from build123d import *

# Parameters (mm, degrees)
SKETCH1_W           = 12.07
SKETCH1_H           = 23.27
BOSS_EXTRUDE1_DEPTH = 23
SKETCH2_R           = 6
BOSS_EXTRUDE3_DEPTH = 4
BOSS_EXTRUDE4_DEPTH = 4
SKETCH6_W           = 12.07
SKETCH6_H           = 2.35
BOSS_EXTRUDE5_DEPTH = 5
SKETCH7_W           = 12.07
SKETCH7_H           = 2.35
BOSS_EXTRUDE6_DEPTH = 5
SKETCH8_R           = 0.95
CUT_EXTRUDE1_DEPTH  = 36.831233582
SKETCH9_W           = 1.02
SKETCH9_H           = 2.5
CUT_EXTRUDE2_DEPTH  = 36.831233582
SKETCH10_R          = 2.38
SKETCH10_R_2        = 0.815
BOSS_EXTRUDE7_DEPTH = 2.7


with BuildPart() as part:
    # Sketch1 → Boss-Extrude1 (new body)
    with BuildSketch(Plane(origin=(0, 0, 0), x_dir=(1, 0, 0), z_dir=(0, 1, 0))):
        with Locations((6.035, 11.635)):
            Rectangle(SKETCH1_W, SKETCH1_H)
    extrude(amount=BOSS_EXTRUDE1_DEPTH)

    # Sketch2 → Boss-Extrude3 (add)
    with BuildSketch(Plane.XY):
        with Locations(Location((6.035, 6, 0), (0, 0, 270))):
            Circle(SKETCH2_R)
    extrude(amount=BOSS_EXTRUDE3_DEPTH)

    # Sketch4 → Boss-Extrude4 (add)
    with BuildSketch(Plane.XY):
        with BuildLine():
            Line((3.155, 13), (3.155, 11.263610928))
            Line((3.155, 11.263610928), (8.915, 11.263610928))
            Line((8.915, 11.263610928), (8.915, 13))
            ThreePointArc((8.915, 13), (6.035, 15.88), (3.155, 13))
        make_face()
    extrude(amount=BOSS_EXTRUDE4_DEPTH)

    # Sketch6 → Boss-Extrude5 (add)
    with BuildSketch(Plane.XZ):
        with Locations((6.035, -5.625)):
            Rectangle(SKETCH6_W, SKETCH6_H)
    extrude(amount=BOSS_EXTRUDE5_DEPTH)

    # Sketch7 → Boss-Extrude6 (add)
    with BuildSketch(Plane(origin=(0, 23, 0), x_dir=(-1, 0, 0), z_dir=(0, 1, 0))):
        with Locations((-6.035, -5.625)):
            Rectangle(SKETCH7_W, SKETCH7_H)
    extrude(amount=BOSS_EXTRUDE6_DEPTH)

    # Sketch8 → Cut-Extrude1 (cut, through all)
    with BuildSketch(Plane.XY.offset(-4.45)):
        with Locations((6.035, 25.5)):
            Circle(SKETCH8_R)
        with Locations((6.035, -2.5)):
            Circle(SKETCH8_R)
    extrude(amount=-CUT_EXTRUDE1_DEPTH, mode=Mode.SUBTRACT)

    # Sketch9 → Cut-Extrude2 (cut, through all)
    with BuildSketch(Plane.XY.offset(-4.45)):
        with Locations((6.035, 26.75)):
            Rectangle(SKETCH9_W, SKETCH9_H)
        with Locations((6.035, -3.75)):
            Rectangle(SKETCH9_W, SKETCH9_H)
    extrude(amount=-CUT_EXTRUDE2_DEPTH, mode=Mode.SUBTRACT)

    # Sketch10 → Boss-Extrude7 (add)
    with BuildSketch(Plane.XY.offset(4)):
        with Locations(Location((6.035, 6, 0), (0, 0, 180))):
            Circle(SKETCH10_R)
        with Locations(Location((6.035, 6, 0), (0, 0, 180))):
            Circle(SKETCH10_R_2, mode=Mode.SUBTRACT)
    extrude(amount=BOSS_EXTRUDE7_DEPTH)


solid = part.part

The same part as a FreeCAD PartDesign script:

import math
import FreeCAD as App
import Part
import Sketcher


def add_polygon(sketch, points):
    """Adds a closed chain of lines whose ends are joined by coincident constraints."""
    first, n = sketch.GeometryCount, len(points)
    for a, b in zip(points, points[1:] + points[:1]):
        sketch.addGeometry(Part.LineSegment(App.Vector(*a, 0), App.Vector(*b, 0)), False)
    for i in range(n):
        sketch.addConstraint(Sketcher.Constraint("Coincident", first + i, 2, first + (i + 1) % n, 1))

doc = App.newDocument("Part")
body = doc.addObject("PartDesign::Body", "Body")

# Sketch on XZ plane
sketch1 = doc.addObject("Sketcher::SketchObject", "Sketch")
body.addObject(sketch1)
sketch1.AttachmentSupport = (doc.XZ_Plane, [""])
sketch1.MapMode = "FlatFace"
add_polygon(sketch1, [(0, -23.27), (0, 0), (12.07, 0), (12.07, -23.27)])  # lines 0-3
sketch1.addConstraint([
    Sketcher.Constraint("Vertical", 0),
    Sketcher.Constraint("Horizontal", 1),
    Sketcher.Constraint("Vertical", 2),
    Sketcher.Constraint("Horizontal", 3),
    Sketcher.Constraint("Coincident", 0, 2, -1, 1),
    Sketcher.Constraint("DistanceX", 1, 1, 1, 2, 12.07),
    Sketcher.Constraint("DistanceY", 0, 1, 0, 2, 23.27),
])
pad1 = doc.addObject("PartDesign::Pad", "Pad")
body.addObject(pad1)
pad1.Profile = sketch1
pad1.Length = 23
pad1.Reversed = True

# Sketch on XY plane
sketch2 = doc.addObject("Sketcher::SketchObject", "Sketch001")
body.addObject(sketch2)
sketch2.AttachmentSupport = (doc.XY_Plane, [""])
sketch2.MapMode = "FlatFace"
sketch2.addGeometry(Part.Circle(App.Vector(6.035, 6, 0), App.Vector(0, 0, 1), 6), False)
sketch2.addConstraint([
    Sketcher.Constraint("Diameter", 0, 12.0),
    Sketcher.Constraint("DistanceY", -1, 1, 0, 3, 6.0),
    Sketcher.Constraint("DistanceX", -1, 1, 0, 3, 6.035),
])
pad2 = doc.addObject("PartDesign::Pad", "Pad001")
body.addObject(pad2)
pad2.Profile = sketch2
pad2.Length = 4

# Sketch on XY plane
sketch3 = doc.addObject("Sketcher::SketchObject", "Sketch002")
body.addObject(sketch3)
sketch3.AttachmentSupport = (doc.XY_Plane, [""])
sketch3.MapMode = "FlatFace"
sketch3.addGeometry([
    Part.LineSegment(App.Vector(3.155, 13, 0), App.Vector(3.155, 11.263611, 0)),
    Part.LineSegment(App.Vector(3.155, 11.263611, 0), App.Vector(8.915, 11.263611, 0)),
    Part.LineSegment(App.Vector(8.915, 11.263611, 0), App.Vector(8.915, 13, 0)),
    Part.ArcOfCircle(Part.Circle(App.Vector(6.035, 13, 0), App.Vector(0, 0, 1), 2.88), math.radians(0), math.radians(180)),
], False)
sketch3.addConstraint([
    Sketcher.Constraint("Coincident", 0, 2, 1, 1),
    Sketcher.Constraint("Coincident", 1, 2, 2, 1),
    Sketcher.Constraint("Tangent", 2, 2, 3, 1),
    Sketcher.Constraint("Tangent", 3, 2, 0, 1),
    Sketcher.Constraint("Vertical", 0),
    Sketcher.Constraint("Horizontal", 1),
    Sketcher.Constraint("Vertical", 2),
    Sketcher.Constraint("Radius", 3, 2.88),
    Sketcher.Constraint("DistanceY", -1, 1, 3, 3, 13.0),
    Sketcher.Constraint("DistanceX", -1, 1, 3, 3, 6.035),
    Sketcher.Constraint("DistanceY", 0, 2, 0, 1, 1.736389),
])
pad3 = doc.addObject("PartDesign::Pad", "Pad002")
body.addObject(pad3)
pad3.Profile = sketch3
pad3.Length = 4

# Sketch on XZ plane
sketch4 = doc.addObject("Sketcher::SketchObject", "Sketch003")
body.addObject(sketch4)
sketch4.AttachmentSupport = (doc.XZ_Plane, [""])
sketch4.MapMode = "FlatFace"
add_polygon(sketch4, [(0, -4.45), (0, -6.8), (12.07, -6.8), (12.07, -4.45)])  # lines 0-3
sketch4.addConstraint([
    Sketcher.Constraint("Vertical", 0),
    Sketcher.Constraint("Horizontal", 1),
    Sketcher.Constraint("Vertical", 2),
    Sketcher.Constraint("Horizontal", 3),
    Sketcher.Constraint("PointOnObject", 0, 2, -2),
    Sketcher.Constraint("DistanceX", 1, 1, 1, 2, 12.07),
    Sketcher.Constraint("DistanceY", 0, 2, 0, 1, 2.35),
    Sketcher.Constraint("DistanceY", 0, 2, -1, 1, 6.8),
])
pad4 = doc.addObject("PartDesign::Pad", "Pad003")
body.addObject(pad4)
pad4.Profile = sketch4
pad4.Length = 5

# Sketch on XZ plane
sketch5 = doc.addObject("Sketcher::SketchObject", "Sketch004")
body.addObject(sketch5)
sketch5.AttachmentSupport = (doc.XZ_Plane, [""])
sketch5.MapMode = "FlatFace"
sketch5.AttachmentOffset = App.Placement(App.Vector(0, 0, -23), App.Rotation())
add_polygon(sketch5, [(12.07, -4.45), (12.07, -6.8), (0, -6.8), (0, -4.45)])  # lines 0-3
sketch5.addConstraint([
    Sketcher.Constraint("Vertical", 0),
    Sketcher.Constraint("Horizontal", 1),
    Sketcher.Constraint("Vertical", 2),
    Sketcher.Constraint("Horizontal", 3),
    Sketcher.Constraint("PointOnObject", 1, 2, -2),
    Sketcher.Constraint("DistanceX", 1, 2, 1, 1, 12.07),
    Sketcher.Constraint("DistanceY", 0, 2, 0, 1, 2.35),
    Sketcher.Constraint("DistanceY", 0, 2, -1, 1, 6.8),
])
pad5 = doc.addObject("PartDesign::Pad", "Pad004")
body.addObject(pad5)
pad5.Profile = sketch5
pad5.Length = 5
pad5.Reversed = True

# Sketch on XY plane
sketch6 = doc.addObject("Sketcher::SketchObject", "Sketch005")
body.addObject(sketch6)
sketch6.AttachmentSupport = (doc.XY_Plane, [""])
sketch6.MapMode = "FlatFace"
sketch6.AttachmentOffset = App.Placement(App.Vector(0, 0, -4.45), App.Rotation())
sketch6.addGeometry([
    Part.Circle(App.Vector(6.035, 25.5, 0), App.Vector(0, 0, 1), 0.95),
    Part.Circle(App.Vector(6.035, -2.5, 0), App.Vector(0, 0, 1), 0.95),
], False)
sketch6.addConstraint([
    Sketcher.Constraint("Equal", 0, 1),
    Sketcher.Constraint("Vertical", 0, 3, 1, 3),
    Sketcher.Constraint("Diameter", 0, 1.9),
    Sketcher.Constraint("DistanceY", 1, 3, 0, 3, 28.0),
    Sketcher.Constraint("DistanceY", -1, 1, 0, 3, 25.5),
    Sketcher.Constraint("DistanceX", -1, 1, 0, 3, 6.035),
])
pocket1 = doc.addObject("PartDesign::Pocket", "Pocket")
body.addObject(pocket1)
pocket1.Profile = sketch6
pocket1.Type = "ThroughAll"

# Sketch on XY plane
sketch7 = doc.addObject("Sketcher::SketchObject", "Sketch006")
body.addObject(sketch7)
sketch7.AttachmentSupport = (doc.XY_Plane, [""])
sketch7.MapMode = "FlatFace"
sketch7.AttachmentOffset = App.Placement(App.Vector(0, 0, -4.45), App.Rotation())
add_polygon(sketch7, [(5.525, 28), (5.525, 25.5), (6.545, 25.5), (6.545, 28)])  # lines 0-3
add_polygon(sketch7, [(5.525, -2.5), (5.525, -5), (6.545, -5), (6.545, -2.5)])  # lines 4-7
sketch7.addConstraint([
    Sketcher.Constraint("Vertical", 0),
    Sketcher.Constraint("Horizontal", 1),
    Sketcher.Constraint("Vertical", 2),
    Sketcher.Constraint("Horizontal", 3),
    Sketcher.Constraint("Vertical", 4),
    Sketcher.Constraint("Horizontal", 5),
    Sketcher.Constraint("Vertical", 6),
    Sketcher.Constraint("Horizontal", 7),
    Sketcher.Constraint("Vertical", 3, 2, 4, 2),
    Sketcher.Constraint("Vertical", 2, 2, 5, 2),
    Sketcher.Constraint("Equal", 2, 4),
    Sketcher.Constraint("DistanceY", 0, 2, 0, 1, 2.5),
    Sketcher.Constraint("DistanceY", -1, 1, 2, 2, 28.0),
    Sketcher.Constraint("DistanceY", 4, 2, -1, 1, 5.0),
    Sketcher.Constraint("DistanceX", 1, 1, 1, 2, 1.02),
    Sketcher.Constraint("DistanceX", -1, 1, 0, 2, 5.525),
])
pocket2 = doc.addObject("PartDesign::Pocket", "Pocket001")
body.addObject(pocket2)
pocket2.Profile = sketch7
pocket2.Type = "ThroughAll"

# Sketch on XY plane
sketch8 = doc.addObject("Sketcher::SketchObject", "Sketch007")
body.addObject(sketch8)
sketch8.AttachmentSupport = (doc.XY_Plane, [""])
sketch8.MapMode = "FlatFace"
sketch8.AttachmentOffset = App.Placement(App.Vector(0, 0, 4), App.Rotation())
sketch8.addGeometry([
    Part.Circle(App.Vector(6.035, 6, 0), App.Vector(0, 0, 1), 2.38),
    Part.Circle(App.Vector(6.035, 6, 0), App.Vector(0, 0, 1), 0.815),
], False)
sketch8.addConstraint([
    Sketcher.Constraint("Coincident", 1, 3, 0, 3),
    Sketcher.Constraint("Diameter", 0, 4.76),
    Sketcher.Constraint("Diameter", 1, 1.63),
    Sketcher.Constraint("DistanceY", -1, 1, 0, 3, 6.0),
    Sketcher.Constraint("DistanceX", -1, 1, 0, 3, 6.035),
])
pad6 = doc.addObject("PartDesign::Pad", "Pad005")
body.addObject(pad6)
pad6.Profile = sketch8
pad6.Length = 2.7

doc.recompute()
